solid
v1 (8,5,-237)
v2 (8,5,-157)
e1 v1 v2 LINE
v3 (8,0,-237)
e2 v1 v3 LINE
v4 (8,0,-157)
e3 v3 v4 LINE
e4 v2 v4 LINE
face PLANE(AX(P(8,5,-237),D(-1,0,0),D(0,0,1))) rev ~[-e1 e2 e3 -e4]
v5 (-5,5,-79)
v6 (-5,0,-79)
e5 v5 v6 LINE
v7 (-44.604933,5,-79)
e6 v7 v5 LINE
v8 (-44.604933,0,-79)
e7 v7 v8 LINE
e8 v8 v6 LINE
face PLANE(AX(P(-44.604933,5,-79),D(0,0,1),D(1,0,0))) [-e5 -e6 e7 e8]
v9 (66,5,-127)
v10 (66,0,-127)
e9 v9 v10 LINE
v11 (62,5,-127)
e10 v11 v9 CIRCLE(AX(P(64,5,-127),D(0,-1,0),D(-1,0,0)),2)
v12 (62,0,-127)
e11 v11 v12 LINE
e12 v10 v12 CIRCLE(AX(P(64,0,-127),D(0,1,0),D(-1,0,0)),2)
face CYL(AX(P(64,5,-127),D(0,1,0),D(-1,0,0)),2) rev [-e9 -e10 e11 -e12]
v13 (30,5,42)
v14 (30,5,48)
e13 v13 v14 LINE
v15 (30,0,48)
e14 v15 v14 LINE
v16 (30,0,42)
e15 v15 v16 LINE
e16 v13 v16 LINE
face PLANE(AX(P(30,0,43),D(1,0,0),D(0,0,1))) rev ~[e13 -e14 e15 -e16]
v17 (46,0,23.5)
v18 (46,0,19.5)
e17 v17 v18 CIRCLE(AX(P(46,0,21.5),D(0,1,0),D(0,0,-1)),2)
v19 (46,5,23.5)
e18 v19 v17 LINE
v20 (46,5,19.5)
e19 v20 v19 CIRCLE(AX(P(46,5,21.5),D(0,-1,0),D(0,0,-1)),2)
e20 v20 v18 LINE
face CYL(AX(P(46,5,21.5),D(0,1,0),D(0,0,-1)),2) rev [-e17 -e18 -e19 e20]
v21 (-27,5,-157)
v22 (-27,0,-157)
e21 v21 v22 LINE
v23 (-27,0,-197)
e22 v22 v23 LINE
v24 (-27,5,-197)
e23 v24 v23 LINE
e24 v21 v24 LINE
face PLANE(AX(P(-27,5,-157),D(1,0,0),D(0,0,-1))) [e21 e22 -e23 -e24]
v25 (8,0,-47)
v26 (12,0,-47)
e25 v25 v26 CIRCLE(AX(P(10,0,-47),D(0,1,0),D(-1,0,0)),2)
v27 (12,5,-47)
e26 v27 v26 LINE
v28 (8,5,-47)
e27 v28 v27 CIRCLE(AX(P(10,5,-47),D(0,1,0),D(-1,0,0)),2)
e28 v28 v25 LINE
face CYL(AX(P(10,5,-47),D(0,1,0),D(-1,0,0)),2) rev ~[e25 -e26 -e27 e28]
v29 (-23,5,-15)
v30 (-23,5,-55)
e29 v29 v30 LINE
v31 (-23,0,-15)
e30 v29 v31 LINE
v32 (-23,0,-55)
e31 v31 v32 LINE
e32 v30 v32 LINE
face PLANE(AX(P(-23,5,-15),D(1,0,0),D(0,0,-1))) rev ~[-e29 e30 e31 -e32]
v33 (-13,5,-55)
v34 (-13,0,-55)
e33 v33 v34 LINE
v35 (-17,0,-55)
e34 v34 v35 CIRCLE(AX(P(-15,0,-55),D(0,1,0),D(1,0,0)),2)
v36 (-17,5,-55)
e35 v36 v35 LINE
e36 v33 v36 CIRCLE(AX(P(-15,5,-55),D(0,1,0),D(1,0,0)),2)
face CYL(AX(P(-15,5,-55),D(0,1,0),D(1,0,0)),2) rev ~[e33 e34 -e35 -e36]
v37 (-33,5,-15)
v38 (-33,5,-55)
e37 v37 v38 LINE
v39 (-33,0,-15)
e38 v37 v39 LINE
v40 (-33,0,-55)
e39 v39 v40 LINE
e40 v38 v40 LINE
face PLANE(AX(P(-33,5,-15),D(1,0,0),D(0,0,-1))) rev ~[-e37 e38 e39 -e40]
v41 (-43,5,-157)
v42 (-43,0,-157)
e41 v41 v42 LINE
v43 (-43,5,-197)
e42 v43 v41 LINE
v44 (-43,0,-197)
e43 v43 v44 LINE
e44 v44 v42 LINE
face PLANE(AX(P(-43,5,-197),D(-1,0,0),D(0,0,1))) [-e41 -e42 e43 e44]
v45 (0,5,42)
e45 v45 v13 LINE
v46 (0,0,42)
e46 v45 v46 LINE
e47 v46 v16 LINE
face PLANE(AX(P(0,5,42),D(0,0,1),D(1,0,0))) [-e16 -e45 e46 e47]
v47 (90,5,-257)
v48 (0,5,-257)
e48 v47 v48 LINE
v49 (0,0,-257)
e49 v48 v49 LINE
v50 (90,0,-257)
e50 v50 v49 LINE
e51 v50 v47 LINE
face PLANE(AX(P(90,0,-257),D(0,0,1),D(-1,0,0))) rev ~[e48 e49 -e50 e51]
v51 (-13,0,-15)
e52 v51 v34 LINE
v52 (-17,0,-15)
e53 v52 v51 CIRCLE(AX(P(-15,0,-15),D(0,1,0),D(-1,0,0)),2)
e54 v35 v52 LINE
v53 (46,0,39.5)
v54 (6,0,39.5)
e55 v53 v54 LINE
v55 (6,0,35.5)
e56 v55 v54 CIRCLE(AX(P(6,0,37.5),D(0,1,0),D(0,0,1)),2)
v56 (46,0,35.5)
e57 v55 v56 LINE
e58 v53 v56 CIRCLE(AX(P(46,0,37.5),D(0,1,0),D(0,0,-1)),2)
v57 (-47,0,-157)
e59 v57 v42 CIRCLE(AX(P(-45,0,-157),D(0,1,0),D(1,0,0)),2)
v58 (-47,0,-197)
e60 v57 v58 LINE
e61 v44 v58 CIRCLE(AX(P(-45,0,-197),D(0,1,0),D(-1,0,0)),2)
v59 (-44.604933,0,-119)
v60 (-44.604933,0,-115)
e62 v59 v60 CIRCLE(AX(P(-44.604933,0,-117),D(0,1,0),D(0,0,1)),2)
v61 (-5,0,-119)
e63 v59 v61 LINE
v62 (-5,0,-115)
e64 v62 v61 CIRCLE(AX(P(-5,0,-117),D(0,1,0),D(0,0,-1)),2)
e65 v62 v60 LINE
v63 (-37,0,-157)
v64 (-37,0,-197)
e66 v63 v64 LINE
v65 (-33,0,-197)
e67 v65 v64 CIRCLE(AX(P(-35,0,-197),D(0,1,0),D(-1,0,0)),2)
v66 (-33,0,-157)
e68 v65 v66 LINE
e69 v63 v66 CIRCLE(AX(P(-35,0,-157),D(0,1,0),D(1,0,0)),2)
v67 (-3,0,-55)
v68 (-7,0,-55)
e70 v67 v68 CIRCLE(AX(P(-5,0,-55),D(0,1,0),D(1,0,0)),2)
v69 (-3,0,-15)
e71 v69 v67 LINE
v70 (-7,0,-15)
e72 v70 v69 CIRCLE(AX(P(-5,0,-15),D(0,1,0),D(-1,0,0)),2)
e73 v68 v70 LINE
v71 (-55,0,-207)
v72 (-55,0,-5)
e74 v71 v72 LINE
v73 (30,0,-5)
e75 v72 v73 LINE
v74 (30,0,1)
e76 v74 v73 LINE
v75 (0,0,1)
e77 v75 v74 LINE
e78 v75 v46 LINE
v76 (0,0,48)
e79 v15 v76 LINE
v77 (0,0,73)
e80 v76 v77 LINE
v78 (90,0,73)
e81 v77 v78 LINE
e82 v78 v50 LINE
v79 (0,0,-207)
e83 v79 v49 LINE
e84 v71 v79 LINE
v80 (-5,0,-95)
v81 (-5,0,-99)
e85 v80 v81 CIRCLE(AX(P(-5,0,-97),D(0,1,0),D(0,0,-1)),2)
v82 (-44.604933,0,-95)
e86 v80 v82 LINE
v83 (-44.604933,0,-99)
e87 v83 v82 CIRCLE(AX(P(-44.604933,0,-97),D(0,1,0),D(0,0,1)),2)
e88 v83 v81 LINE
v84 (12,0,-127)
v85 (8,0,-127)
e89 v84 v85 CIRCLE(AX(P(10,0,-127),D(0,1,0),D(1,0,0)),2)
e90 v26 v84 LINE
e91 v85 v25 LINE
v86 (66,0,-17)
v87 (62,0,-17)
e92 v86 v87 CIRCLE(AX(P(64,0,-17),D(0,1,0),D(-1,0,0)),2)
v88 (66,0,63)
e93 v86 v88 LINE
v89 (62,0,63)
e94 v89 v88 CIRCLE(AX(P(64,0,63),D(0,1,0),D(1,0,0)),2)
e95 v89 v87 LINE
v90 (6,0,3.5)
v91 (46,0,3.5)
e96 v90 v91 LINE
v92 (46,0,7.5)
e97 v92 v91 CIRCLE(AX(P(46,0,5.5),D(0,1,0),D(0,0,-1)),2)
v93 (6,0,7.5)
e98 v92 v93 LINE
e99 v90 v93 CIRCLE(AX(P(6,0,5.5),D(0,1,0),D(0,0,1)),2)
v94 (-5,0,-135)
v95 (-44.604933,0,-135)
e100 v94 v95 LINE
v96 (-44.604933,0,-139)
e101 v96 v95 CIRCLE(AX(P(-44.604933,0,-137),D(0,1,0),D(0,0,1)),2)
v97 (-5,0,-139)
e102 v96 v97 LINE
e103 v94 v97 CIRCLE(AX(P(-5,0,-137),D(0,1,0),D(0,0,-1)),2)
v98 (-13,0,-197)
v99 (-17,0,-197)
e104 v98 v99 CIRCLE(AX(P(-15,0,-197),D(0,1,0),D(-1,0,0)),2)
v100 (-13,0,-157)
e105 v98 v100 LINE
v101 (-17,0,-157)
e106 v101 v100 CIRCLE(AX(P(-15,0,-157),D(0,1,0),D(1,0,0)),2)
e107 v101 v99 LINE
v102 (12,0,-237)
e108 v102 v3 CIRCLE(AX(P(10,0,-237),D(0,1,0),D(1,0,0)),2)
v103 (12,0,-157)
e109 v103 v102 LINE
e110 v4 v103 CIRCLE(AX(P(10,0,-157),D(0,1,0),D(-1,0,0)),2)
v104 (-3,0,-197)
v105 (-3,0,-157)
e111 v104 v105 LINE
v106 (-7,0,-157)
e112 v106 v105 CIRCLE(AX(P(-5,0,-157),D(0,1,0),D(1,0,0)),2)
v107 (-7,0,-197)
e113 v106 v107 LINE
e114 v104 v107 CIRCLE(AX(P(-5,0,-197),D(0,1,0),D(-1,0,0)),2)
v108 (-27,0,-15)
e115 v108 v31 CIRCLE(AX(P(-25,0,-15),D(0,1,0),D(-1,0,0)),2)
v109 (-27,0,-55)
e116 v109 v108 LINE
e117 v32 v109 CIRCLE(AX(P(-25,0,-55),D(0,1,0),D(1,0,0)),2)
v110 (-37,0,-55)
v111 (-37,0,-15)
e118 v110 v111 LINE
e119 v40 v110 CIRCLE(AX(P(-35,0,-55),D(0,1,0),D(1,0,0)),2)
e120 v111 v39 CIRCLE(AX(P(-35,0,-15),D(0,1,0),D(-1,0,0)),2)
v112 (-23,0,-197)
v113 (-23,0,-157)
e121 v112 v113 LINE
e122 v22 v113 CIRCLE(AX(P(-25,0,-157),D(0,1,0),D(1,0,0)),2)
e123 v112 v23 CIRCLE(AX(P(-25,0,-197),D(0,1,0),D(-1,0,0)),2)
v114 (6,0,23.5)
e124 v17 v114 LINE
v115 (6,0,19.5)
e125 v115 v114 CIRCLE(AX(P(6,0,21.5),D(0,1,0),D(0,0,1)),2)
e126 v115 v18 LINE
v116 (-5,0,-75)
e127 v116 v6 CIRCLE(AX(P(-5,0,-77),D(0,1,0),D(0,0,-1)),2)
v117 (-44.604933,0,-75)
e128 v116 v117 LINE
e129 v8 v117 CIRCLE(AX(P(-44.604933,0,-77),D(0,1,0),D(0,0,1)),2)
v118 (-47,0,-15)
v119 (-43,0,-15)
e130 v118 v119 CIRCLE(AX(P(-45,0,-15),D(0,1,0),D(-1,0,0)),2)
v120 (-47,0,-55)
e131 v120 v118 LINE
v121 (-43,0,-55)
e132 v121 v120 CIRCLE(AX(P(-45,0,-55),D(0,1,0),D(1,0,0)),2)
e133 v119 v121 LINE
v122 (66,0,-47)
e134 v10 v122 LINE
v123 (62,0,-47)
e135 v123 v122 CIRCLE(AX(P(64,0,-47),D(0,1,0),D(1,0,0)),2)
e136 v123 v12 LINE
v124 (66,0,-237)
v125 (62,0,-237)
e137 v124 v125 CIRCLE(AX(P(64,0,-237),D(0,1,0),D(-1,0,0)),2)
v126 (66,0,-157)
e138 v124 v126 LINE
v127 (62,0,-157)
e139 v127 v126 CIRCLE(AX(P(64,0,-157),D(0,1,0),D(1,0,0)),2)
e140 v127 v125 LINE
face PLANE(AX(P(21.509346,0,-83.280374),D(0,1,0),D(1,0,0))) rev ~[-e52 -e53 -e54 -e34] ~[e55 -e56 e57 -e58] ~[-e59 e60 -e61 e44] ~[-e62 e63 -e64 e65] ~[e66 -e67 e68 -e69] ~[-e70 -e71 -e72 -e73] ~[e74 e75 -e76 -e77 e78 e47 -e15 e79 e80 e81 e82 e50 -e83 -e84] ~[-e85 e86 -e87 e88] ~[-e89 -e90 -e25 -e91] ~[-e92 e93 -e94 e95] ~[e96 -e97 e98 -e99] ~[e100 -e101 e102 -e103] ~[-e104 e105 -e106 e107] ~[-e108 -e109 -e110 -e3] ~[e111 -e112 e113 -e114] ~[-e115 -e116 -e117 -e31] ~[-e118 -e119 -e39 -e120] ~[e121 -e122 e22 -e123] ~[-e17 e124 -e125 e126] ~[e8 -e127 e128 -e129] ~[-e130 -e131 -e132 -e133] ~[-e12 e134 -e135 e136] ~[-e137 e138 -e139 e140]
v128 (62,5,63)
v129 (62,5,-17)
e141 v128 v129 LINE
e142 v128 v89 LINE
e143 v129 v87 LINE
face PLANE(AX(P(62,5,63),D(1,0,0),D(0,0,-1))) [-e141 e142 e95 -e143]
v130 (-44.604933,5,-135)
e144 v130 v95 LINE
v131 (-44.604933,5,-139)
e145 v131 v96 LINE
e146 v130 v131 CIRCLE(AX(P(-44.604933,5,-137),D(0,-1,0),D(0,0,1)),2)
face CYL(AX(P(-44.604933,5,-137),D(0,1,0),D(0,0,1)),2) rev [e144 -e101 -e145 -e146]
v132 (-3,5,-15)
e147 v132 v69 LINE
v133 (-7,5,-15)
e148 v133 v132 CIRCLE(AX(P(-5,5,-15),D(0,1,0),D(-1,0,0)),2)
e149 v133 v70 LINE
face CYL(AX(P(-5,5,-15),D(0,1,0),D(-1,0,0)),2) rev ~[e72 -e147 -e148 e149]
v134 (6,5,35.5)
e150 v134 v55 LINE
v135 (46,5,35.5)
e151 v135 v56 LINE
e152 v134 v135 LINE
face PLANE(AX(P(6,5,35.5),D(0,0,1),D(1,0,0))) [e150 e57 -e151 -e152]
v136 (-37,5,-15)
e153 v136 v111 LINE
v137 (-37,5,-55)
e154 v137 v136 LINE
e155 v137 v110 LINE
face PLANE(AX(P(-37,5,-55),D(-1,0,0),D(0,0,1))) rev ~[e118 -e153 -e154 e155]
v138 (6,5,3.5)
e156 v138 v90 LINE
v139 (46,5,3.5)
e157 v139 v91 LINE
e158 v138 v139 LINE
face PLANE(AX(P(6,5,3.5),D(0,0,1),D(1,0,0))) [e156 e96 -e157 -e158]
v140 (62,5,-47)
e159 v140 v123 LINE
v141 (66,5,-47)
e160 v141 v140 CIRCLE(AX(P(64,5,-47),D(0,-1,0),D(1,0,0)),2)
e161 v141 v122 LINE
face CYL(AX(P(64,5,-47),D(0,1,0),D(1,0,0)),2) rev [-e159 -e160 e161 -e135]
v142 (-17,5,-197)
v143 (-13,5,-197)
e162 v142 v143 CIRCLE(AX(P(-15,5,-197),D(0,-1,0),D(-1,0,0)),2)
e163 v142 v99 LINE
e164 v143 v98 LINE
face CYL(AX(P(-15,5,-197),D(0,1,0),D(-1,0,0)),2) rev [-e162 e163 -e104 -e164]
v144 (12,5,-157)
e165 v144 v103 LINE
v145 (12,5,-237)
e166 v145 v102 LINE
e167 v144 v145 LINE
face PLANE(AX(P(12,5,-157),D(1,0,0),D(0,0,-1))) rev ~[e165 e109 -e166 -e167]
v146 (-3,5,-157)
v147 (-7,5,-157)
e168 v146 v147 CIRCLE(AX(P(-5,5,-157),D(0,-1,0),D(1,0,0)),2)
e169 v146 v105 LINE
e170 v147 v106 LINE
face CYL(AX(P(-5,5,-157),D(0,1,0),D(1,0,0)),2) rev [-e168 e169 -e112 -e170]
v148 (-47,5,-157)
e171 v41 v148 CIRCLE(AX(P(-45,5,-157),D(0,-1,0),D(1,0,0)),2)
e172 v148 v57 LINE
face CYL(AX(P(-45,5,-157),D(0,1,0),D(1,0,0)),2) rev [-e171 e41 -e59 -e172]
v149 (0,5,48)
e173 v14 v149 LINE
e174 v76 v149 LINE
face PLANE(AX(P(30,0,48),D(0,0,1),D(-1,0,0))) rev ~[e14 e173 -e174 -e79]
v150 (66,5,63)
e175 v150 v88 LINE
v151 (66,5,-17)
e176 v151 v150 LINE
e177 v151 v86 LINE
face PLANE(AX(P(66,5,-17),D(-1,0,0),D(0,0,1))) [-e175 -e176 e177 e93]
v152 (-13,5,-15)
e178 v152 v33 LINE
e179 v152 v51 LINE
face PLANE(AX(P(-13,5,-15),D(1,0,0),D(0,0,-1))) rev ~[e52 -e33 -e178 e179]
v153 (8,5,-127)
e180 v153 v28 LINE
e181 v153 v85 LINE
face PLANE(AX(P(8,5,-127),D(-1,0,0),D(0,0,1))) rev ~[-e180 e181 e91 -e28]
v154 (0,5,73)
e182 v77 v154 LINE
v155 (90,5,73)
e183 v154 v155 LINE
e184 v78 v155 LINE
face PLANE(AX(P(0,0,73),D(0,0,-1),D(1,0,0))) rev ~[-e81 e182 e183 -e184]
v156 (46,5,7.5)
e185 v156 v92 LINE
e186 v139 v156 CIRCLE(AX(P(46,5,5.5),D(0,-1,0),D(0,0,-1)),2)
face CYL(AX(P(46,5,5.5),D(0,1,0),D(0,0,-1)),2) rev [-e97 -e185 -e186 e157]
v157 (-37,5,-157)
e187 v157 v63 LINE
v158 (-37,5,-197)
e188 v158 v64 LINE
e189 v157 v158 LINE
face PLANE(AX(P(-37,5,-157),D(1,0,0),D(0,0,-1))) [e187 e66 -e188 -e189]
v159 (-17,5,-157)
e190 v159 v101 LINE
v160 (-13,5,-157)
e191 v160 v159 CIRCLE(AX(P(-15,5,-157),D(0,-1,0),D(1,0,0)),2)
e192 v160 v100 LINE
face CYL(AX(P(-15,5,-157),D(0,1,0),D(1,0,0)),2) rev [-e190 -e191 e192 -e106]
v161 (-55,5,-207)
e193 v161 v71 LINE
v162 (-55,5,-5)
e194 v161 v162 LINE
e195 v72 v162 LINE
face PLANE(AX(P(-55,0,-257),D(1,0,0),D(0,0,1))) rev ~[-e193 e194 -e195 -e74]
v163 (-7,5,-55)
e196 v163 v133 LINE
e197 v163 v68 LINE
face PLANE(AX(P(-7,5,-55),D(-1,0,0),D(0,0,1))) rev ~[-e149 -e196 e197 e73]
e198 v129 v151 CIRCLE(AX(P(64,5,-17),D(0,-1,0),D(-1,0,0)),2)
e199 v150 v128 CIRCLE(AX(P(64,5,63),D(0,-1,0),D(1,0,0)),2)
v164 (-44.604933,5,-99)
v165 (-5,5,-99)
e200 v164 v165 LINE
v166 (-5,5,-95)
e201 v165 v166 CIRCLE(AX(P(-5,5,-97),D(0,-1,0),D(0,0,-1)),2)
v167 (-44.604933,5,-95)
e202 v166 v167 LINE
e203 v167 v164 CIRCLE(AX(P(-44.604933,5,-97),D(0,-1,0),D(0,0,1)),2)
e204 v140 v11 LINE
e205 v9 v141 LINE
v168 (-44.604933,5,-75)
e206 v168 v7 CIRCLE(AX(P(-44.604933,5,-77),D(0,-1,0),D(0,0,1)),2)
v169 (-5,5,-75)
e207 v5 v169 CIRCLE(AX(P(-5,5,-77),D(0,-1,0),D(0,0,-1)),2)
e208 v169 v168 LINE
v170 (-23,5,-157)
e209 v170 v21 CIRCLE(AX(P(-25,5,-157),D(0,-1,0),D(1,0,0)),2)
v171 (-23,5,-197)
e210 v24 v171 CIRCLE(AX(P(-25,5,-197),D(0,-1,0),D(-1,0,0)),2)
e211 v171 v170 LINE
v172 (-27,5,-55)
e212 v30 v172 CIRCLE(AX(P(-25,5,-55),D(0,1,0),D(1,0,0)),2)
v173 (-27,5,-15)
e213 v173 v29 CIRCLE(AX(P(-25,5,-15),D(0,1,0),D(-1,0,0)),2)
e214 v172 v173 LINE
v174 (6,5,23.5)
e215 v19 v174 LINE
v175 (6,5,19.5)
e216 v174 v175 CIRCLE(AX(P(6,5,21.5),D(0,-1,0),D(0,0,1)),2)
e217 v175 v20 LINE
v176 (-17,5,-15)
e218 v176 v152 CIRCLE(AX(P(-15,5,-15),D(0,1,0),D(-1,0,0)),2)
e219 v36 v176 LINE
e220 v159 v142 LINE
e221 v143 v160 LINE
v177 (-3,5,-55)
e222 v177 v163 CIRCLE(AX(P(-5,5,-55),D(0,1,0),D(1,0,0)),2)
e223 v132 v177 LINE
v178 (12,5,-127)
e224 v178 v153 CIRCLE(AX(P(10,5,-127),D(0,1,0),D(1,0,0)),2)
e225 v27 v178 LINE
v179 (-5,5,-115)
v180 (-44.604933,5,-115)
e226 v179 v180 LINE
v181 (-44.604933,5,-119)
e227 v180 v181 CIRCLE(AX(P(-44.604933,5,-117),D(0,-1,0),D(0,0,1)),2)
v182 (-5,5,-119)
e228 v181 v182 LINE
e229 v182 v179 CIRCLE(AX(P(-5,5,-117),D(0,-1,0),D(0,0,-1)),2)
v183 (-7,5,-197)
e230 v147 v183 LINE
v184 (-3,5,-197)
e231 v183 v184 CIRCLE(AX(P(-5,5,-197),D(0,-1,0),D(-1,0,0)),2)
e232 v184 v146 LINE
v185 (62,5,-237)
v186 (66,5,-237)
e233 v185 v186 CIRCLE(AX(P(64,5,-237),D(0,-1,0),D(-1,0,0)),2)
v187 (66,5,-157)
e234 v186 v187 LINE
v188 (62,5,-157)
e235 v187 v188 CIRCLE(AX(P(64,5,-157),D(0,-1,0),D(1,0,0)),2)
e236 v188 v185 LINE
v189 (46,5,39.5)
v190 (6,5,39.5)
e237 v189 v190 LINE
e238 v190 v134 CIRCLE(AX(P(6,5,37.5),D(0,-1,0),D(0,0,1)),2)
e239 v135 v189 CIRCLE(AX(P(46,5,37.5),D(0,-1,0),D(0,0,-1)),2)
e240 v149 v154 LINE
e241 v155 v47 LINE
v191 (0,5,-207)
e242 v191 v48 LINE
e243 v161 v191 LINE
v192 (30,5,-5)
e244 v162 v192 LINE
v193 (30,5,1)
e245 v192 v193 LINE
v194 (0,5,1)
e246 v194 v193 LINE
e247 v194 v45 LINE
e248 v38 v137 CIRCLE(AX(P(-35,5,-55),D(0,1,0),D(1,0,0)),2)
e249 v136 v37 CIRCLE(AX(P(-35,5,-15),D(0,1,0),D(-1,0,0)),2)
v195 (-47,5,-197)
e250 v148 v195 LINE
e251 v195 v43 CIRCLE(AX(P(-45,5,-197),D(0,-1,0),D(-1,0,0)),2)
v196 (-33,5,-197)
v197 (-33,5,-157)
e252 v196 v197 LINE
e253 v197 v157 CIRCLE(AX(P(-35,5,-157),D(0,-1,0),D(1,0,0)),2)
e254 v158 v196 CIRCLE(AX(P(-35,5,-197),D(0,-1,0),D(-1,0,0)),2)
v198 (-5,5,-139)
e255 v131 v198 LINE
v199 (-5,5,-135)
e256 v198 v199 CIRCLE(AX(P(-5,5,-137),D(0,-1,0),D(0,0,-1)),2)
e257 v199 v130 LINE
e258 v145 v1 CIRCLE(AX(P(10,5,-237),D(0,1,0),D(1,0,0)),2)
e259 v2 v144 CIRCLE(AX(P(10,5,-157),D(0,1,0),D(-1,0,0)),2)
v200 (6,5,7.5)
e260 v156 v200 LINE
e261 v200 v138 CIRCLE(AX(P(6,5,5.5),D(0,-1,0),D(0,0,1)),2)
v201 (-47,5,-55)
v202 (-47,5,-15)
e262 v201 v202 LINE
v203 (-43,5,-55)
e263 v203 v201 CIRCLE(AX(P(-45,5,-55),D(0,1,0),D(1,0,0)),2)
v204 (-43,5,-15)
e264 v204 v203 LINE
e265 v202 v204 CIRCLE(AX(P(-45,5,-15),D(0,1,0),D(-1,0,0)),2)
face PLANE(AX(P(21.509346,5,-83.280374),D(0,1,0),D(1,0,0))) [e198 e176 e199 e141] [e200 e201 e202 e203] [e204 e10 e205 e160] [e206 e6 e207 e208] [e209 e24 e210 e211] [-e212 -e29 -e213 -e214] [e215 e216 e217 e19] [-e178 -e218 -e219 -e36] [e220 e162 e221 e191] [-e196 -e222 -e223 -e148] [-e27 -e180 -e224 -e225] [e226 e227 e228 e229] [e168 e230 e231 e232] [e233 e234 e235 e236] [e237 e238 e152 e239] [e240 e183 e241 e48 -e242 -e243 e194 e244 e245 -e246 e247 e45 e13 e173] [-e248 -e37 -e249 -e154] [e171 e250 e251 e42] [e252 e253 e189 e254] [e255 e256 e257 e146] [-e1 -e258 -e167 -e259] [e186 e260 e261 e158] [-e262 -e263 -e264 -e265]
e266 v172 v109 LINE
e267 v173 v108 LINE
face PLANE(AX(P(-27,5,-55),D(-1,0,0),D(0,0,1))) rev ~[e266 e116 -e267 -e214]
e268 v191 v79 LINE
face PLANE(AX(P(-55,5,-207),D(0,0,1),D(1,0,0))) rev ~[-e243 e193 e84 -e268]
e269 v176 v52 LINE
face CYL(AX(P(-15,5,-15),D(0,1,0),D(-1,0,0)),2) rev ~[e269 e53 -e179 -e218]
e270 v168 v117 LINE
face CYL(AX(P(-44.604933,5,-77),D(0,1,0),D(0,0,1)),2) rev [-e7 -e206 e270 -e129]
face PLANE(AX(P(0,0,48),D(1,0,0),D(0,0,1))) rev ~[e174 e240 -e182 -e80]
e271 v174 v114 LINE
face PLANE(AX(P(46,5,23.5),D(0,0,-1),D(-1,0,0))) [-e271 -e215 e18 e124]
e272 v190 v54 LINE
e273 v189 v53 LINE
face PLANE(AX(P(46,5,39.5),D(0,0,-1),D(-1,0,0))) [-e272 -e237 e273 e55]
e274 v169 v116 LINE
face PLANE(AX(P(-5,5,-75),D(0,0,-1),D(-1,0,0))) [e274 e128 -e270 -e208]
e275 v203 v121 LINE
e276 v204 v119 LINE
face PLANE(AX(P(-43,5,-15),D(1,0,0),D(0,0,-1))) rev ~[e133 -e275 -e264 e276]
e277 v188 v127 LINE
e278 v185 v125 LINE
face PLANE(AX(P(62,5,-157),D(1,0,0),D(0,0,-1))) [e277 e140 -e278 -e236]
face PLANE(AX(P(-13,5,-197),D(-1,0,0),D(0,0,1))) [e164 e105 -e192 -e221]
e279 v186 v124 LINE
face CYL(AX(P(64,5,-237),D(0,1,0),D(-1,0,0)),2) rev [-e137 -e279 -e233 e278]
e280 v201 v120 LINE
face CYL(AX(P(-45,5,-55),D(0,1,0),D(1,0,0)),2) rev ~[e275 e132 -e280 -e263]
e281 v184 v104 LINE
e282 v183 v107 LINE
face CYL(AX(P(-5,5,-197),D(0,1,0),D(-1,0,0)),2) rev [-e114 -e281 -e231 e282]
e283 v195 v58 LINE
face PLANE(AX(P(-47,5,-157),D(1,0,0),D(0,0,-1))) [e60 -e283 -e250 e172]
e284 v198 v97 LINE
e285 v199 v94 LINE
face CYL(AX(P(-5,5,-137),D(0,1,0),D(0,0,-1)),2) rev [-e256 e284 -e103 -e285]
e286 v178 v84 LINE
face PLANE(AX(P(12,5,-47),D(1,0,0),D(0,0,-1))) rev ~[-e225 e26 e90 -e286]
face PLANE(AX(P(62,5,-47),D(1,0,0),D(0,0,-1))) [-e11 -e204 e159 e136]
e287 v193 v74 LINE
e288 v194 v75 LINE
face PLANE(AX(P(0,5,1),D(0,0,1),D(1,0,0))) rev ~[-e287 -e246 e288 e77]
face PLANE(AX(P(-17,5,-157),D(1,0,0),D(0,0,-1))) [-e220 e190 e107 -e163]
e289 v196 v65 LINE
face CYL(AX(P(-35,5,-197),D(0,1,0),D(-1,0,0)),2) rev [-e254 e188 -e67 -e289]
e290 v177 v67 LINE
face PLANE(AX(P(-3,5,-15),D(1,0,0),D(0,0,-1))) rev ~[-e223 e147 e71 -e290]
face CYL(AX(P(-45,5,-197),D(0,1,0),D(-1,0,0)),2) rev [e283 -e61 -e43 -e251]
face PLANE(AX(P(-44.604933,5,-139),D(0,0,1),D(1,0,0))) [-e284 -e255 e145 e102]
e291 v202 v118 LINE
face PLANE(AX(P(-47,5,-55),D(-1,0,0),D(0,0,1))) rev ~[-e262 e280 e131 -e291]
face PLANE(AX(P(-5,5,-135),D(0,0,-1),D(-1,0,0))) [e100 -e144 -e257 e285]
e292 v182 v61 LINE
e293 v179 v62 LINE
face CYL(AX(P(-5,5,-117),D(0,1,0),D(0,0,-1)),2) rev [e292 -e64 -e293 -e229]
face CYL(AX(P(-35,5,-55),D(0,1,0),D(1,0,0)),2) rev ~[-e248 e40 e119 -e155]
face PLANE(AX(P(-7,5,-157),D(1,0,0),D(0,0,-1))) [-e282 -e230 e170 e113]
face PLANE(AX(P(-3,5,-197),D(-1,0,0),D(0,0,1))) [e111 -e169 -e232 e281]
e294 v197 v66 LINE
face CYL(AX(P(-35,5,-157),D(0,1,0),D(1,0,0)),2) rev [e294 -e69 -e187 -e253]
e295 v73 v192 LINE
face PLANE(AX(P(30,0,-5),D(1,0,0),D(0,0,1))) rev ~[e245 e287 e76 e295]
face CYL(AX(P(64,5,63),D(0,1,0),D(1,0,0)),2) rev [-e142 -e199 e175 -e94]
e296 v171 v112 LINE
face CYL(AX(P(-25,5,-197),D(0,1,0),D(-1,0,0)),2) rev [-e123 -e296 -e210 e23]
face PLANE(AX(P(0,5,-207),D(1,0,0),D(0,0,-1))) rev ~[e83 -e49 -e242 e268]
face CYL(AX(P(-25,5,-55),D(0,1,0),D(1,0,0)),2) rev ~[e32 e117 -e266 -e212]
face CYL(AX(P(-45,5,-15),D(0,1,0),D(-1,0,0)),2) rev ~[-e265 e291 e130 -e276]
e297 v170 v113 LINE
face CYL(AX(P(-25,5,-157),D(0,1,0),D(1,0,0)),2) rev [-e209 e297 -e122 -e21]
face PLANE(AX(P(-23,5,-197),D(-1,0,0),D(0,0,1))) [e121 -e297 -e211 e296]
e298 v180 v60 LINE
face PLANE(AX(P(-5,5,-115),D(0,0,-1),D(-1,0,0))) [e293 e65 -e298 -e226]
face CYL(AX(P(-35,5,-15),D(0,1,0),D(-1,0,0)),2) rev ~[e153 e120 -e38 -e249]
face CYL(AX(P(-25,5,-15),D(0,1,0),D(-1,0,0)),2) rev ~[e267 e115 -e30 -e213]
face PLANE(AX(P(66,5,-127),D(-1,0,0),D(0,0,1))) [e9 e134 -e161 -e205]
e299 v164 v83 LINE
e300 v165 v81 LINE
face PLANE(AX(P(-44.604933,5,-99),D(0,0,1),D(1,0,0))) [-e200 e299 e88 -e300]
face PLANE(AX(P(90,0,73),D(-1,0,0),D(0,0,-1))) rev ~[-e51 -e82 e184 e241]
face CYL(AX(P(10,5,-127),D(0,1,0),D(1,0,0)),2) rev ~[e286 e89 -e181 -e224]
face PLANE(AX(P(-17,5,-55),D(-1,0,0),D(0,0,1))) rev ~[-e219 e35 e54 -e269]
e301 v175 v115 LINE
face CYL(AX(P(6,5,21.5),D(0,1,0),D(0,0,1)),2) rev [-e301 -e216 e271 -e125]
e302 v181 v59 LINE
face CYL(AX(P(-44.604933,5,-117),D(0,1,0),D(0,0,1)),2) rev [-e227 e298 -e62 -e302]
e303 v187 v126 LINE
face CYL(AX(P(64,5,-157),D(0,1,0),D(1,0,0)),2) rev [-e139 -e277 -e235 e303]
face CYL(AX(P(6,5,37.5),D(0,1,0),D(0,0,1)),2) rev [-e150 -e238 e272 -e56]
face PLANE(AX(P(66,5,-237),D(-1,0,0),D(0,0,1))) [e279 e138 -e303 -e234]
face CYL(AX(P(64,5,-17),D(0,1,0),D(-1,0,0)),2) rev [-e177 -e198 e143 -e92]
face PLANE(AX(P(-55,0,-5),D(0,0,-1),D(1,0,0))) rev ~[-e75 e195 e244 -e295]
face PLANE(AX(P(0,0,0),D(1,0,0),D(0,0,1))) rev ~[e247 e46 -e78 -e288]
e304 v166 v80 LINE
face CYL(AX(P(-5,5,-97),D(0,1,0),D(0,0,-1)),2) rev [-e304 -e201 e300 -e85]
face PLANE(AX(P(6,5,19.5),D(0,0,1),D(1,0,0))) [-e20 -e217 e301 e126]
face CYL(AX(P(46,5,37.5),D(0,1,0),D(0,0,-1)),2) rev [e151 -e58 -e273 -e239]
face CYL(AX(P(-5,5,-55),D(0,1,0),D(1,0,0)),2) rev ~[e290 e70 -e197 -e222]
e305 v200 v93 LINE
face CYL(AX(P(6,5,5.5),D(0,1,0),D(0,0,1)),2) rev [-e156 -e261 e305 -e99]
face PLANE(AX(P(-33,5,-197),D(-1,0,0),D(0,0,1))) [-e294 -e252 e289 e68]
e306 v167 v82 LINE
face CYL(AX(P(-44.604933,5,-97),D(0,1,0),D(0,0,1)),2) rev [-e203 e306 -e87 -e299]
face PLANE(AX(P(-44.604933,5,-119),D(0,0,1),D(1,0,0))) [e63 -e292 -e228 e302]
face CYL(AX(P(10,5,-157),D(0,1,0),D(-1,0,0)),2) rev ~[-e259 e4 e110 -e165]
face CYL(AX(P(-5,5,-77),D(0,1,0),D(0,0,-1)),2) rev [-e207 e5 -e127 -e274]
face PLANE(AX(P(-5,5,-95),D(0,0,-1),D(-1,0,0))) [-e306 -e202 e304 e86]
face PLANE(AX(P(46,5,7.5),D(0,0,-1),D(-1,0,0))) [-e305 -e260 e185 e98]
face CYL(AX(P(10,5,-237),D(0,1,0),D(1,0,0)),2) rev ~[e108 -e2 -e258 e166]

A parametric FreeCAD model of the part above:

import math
import FreeCAD as App
import Part
import Sketcher
from FreeCAD import Vector
Q = App.Units.Quantity

doc = App.newDocument("Part")
body = doc.addObject("PartDesign::Body", "Body")

sketch1 = body.newObject("Sketcher::SketchObject", "Sketch")
sketch1.AttachmentSupport = (doc.getObject("XZ_Plane"), [""])
sketch1.MapMode = "FlatFace"
sketch1.addGeometry([
    Part.LineSegment(Vector(0, 0, 0), Vector(0, 43, 0)),
    Part.LineSegment(Vector(0, 43, 0), Vector(30, 43, 0)),
    Part.LineSegment(Vector(30, 43, 0), Vector(30, 48, 0)),
    Part.LineSegment(Vector(30, 48, 0), Vector(0, 48, 0)),
    Part.LineSegment(Vector(0, 48, 0), Vector(0, 73, 0)),
    Part.LineSegment(Vector(0, 73, 0), Vector(90, 73, 0)),
    Part.LineSegment(Vector(90, 73, 0), Vector(90, -257, 0)),
    Part.LineSegment(Vector(90, -257, 0), Vector(-55, -257, 0)),
    Part.LineSegment(Vector(-55, -257, 0), Vector(-55, -5, 0)),
    Part.LineSegment(Vector(-55, -5, 0), Vector(30, -5, 0)),
    Part.LineSegment(Vector(30, -5, 0), Vector(30, 0, 0)),
    Part.LineSegment(Vector(30, 0, 0), Vector(0, 0, 0)),
], False)
sketch1.addConstraint([
    Sketcher.Constraint("Coincident", 0, 2, 1, 1),
    Sketcher.Constraint("Coincident", 1, 2, 2, 1),
    Sketcher.Constraint("Coincident", 2, 2, 3, 1),
    Sketcher.Constraint("Coincident", 3, 2, 4, 1),
    Sketcher.Constraint("Coincident", 4, 2, 5, 1),
    Sketcher.Constraint("Coincident", 5, 2, 6, 1),
    Sketcher.Constraint("Coincident", 6, 2, 7, 1),
    Sketcher.Constraint("Coincident", 7, 2, 8, 1),
    Sketcher.Constraint("Coincident", 8, 2, 9, 1),
    Sketcher.Constraint("Coincident", 9, 2, 10, 1),
    Sketcher.Constraint("Coincident", 10, 2, 11, 1),
    Sketcher.Constraint("Coincident", 11, 2, 0, 1),
    Sketcher.Constraint("Vertical", 0),
    Sketcher.Constraint("Horizontal", 1),
    Sketcher.Constraint("Vertical", 2),
    Sketcher.Constraint("Horizontal", 3),
    Sketcher.Constraint("Vertical", 4),
    Sketcher.Constraint("Horizontal", 5),
    Sketcher.Constraint("Vertical", 6),
    Sketcher.Constraint("Horizontal", 7),
    Sketcher.Constraint("Vertical", 8),
    Sketcher.Constraint("Horizontal", 9),
    Sketcher.Constraint("Vertical", 10),
    Sketcher.Constraint("Horizontal", 11),
    Sketcher.Constraint("Coincident", 11, 2, -1, 1),
    Sketcher.Constraint("PointOnObject", 3, 2, -2),
    Sketcher.Constraint("Vertical", 2, 2, 9, 2),
    Sketcher.Constraint("Equal", 2, 10),
    Sketcher.Constraint("DistanceX", 1, 1, 1, 2, Q("30 mm")),
    Sketcher.Constraint("DistanceX", 5, 1, 5, 2, Q("90 mm")),
    Sketcher.Constraint("DistanceX", 7, 2, 7, 1, Q("145 mm")),
    Sketcher.Constraint("DistanceY", 0, 1, 0, 2, Q("43 mm")),
    Sketcher.Constraint("DistanceY", 2, 1, 2, 2, Q("5 mm")),
    Sketcher.Constraint("DistanceY", 4, 1, 4, 2, Q("25 mm")),
    Sketcher.Constraint("DistanceY", 6, 2, 6, 1, Q("330 mm")),
])
pad1 = body.newObject("PartDesign::Pad", "Pad")
pad1.Profile = sketch1
pad1.Length = 5
pad1.Reversed = True

sketch2 = body.newObject("Sketcher::SketchObject", "Sketch001")
sketch2.AttachmentSupport = (doc.getObject("XZ_Plane"), [""])
sketch2.MapMode = "FlatFace"
sketch2.AttachmentOffset = App.Placement(Vector(0, 0, -5), App.Rotation())
sketch2.addGeometry([
    Part.LineSegment(Vector(-55, -257, 0), Vector(-55, -207, 0)),
    Part.LineSegment(Vector(-55, -207, 0), Vector(0, -207, 0)),
    Part.LineSegment(Vector(0, -207, 0), Vector(0, -257, 0)),
    Part.LineSegment(Vector(0, -257, 0), Vector(-55, -257, 0)),
], False)
sketch2.addConstraint([
    Sketcher.Constraint("Coincident", 0, 2, 1, 1),
    Sketcher.Constraint("Coincident", 1, 2, 2, 1),
    Sketcher.Constraint("Coincident", 2, 2, 3, 1),
    Sketcher.Constraint("Coincident", 3, 2, 0, 1),
    Sketcher.Constraint("Vertical", 0),
    Sketcher.Constraint("Horizontal", 1),
    Sketcher.Constraint("Vertical", 2),
    Sketcher.Constraint("Horizontal", 3),
    Sketcher.Constraint("PointOnObject", 1, 2, -2),
    Sketcher.Constraint("DistanceX", 1, 1, 1, 2, Q("55 mm")),
    Sketcher.Constraint("DistanceY", 0, 1, 0, 2, Q("50 mm")),
    Sketcher.Constraint("DistanceY", 0, 2, -1, 1, Q("207 mm")),
])
pocket1 = body.newObject("PartDesign::Pocket", "Pocket")
pocket1.Profile = sketch2
pocket1.Type = "ThroughAll"
pocket1.Reversed = True

sketch3 = body.newObject("Sketcher::SketchObject", "Sketch002")
sketch3.AttachmentSupport = (doc.getObject("XZ_Plane"), [""])
sketch3.MapMode = "FlatFace"
sketch3.AttachmentOffset = App.Placement(Vector(0, 0, -5), App.Rotation())
sketch3.addGeometry([
    Part.LineSegment(Vector(66, -157, 0), Vector(66, -237, 0)),
    Part.ArcOfCircle(Part.Circle(Vector(64, -237, 0), Vector(0, 0, 1), 2), math.radians(180), math.radians(360)),
    Part.LineSegment(Vector(62, -237, 0), Vector(62, -157, 0)),
    Part.ArcOfCircle(Part.Circle(Vector(64, -157, 0), Vector(0, 0, 1), 2), math.radians(0), math.radians(180)),
    Part.LineSegment(Vector(66, -47, 0), Vector(66, -127, 0)),
    Part.ArcOfCircle(Part.Circle(Vector(64, -127, 0), Vector(0, 0, 1), 2), math.radians(180), math.radians(360)),
    Part.LineSegment(Vector(62, -127, 0), Vector(62, -47, 0)),
    Part.ArcOfCircle(Part.Circle(Vector(64, -47, 0), Vector(0, 0, 1), 2), math.radians(0), math.radians(180)),
    Part.LineSegment(Vector(66, 63, 0), Vector(66, -17, 0)),
    Part.ArcOfCircle(Part.Circle(Vector(64, -17, 0), Vector(0, 0, 1), 2), math.radians(180), math.radians(360)),
    Part.LineSegment(Vector(62, -17, 0), Vector(62, 63, 0)),
    Part.ArcOfCircle(Part.Circle(Vector(64, 63, 0), Vector(0, 0, 1), 2), math.radians(0), math.radians(180)),
    Part.LineSegment(Vector(8, -237, 0), Vector(8, -157, 0)),
    Part.ArcOfCircle(Part.Circle(Vector(10, -157, 0), Vector(0, 0, 1), 2), math.radians(0), math.radians(180)),
    Part.LineSegment(Vector(12, -157, 0), Vector(12, -237, 0)),
    Part.ArcOfCircle(Part.Circle(Vector(10, -237, 0), Vector(0, 0, 1), 2), math.radians(180), math.radians(360)),
    Part.LineSegment(Vector(8, -127, 0), Vector(8, -47, 0)),
    Part.ArcOfCircle(Part.Circle(Vector(10, -47, 0), Vector(0, 0, 1), 2), math.radians(0), math.radians(180)),
    Part.LineSegment(Vector(12, -47, 0), Vector(12, -127, 0)),
    Part.ArcOfCircle(Part.Circle(Vector(10, -127, 0), Vector(0, 0, 1), 2), math.radians(180), math.radians(360)),
], False)
sketch3.addConstraint([
    Sketcher.Constraint("Tangent", 0, 2, 1, 2),
    Sketcher.Constraint("Tangent", 1, 1, 2, 1),
    Sketcher.Constraint("Tangent", 2, 2, 3, 2),
    Sketcher.Constraint("Tangent", 3, 1, 0, 1),
    Sketcher.Constraint("Tangent", 4, 2, 5, 2),
    Sketcher.Constraint("Tangent", 5, 1, 6, 1),
    Sketcher.Constraint("Tangent", 6, 2, 7, 2),
    Sketcher.Constraint("Tangent", 7, 1, 4, 1),
    Sketcher.Constraint("Tangent", 8, 2, 9, 2),
    Sketcher.Constraint("Tangent", 9, 1, 10, 1),
    Sketcher.Constraint("Tangent", 10, 2, 11, 2),
    Sketcher.Constraint("Tangent", 11, 1, 8, 1),
    Sketcher.Constraint("Tangent", 12, 2, 13, 2),
    Sketcher.Constraint("Tangent", 13, 1, 14, 1),
    Sketcher.Constraint("Tangent", 14, 2, 15, 2),
    Sketcher.Constraint("Tangent", 15, 1, 12, 1),
    Sketcher.Constraint("Tangent", 16, 2, 17, 2),
    Sketcher.Constraint("Tangent", 17, 1, 18, 1),
    Sketcher.Constraint("Tangent", 18, 2, 19, 2),
    Sketcher.Constraint("Tangent", 19, 1, 16, 1),
    Sketcher.Constraint("Vertical", 0),
    Sketcher.Constraint("Vertical", 2),
    Sketcher.Constraint("Vertical", 4),
    Sketcher.Constraint("Vertical", 6),
    Sketcher.Constraint("Vertical", 8),
    Sketcher.Constraint("Vertical", 10),
    Sketcher.Constraint("Vertical", 12),
    Sketcher.Constraint("Vertical", 14),
    Sketcher.Constraint("Vertical", 16),
    Sketcher.Constraint("Vertical", 18),
    Sketcher.Constraint("Equal", 3, 5),
    Sketcher.Constraint("Equal", 7, 9),
    Sketcher.Constraint("Equal", 11, 13),
    Sketcher.Constraint("Equal", 15, 17),
    Sketcher.Constraint("Horizontal", 3, 3, 13, 3),
    Sketcher.Constraint("Horizontal", 1, 3, 15, 3),
    Sketcher.Constraint("Horizontal", 7, 3, 17, 3),
    Sketcher.Constraint("Horizontal", 5, 3, 19, 3),
    Sketcher.Constraint("Vertical", 3, 3, 5, 3),
    Sketcher.Constraint("Vertical", 7, 3, 9, 3),
    Sketcher.Constraint("Vertical", 15, 3, 17, 3),
    Sketcher.Constraint("Equal", 2, 4),
    Sketcher.Constraint("Equal", 6, 8),
    Sketcher.Constraint("Radius", 1, Q("2 mm")),
    Sketcher.Constraint("DistanceY", 0, 2, 0, 1, Q("80 mm")),
    Sketcher.Constraint("DistanceX", -1, 1, 1, 3, Q("64 mm")),
    Sketcher.Constraint("DistanceY", 1, 3, -1, 1, Q("237 mm")),
    Sketcher.Constraint("DistanceY", 5, 3, -1, 1, Q("127 mm")),
    Sketcher.Constraint("DistanceY", 9, 3, -1, 1, Q("17 mm")),
    Sketcher.Constraint("DistanceX", -1, 1, 13, 3, Q("10 mm")),
])
pocket2 = body.newObject("PartDesign::Pocket", "Pocket001")
pocket2.Profile = sketch3
pocket2.Type = "ThroughAll"
pocket2.Reversed = True

sketch4 = body.newObject("Sketcher::SketchObject", "Sketch003")
sketch4.AttachmentSupport = (doc.getObject("XZ_Plane"), [""])
sketch4.MapMode = "FlatFace"
sketch4.AttachmentOffset = App.Placement(Vector(0, 0, -5), App.Rotation())
sketch4.addGeometry([
    Part.LineSegment(Vector(0, 0, 0), Vector(0, 1, 0)),
    Part.LineSegment(Vector(0, 1, 0), Vector(30, 1, 0)),
    Part.LineSegment(Vector(30, 1, 0), Vector(30, 0, 0)),
    Part.LineSegment(Vector(30, 0, 0), Vector(0, 0, 0)),
    Part.LineSegment(Vector(0, 42, 0), Vector(0, 43, 0)),
    Part.LineSegment(Vector(0, 43, 0), Vector(30, 43, 0)),
    Part.LineSegment(Vector(30, 43, 0), Vector(30, 42, 0)),
    Part.LineSegment(Vector(30, 42, 0), Vector(0, 42, 0)),
], False)
sketch4.addConstraint([
    Sketcher.Constraint("Coincident", 0, 2, 1, 1),
    Sketcher.Constraint("Coincident", 1, 2, 2, 1),
    Sketcher.Constraint("Coincident", 2, 2, 3, 1),
    Sketcher.Constraint("Coincident", 3, 2, 0, 1),
    Sketcher.Constraint("Coincident", 4, 2, 5, 1),
    Sketcher.Constraint("Coincident", 5, 2, 6, 1),
    Sketcher.Constraint("Coincident", 6, 2, 7, 1),
    Sketcher.Constraint("Coincident", 7, 2, 4, 1),
    Sketcher.Constraint("Vertical", 0),
    Sketcher.Constraint("Horizontal", 1),
    Sketcher.Constraint("Vertical", 2),
    Sketcher.Constraint("Horizontal", 3),
    Sketcher.Constraint("Vertical", 4),
    Sketcher.Constraint("Horizontal", 5),
    Sketcher.Constraint("Vertical", 6),
    Sketcher.Constraint("Horizontal", 7),
    Sketcher.Constraint("Coincident", 3, 2, -1, 1),
    Sketcher.Constraint("PointOnObject", 4, 2, -2),
    Sketcher.Constraint("Vertical", 2, 2, 5, 2),
    Sketcher.Constraint("Equal", 2, 4),
    Sketcher.Constraint("DistanceX", 1, 1, 1, 2, Q("30 mm")),
    Sketcher.Constraint("DistanceY", 0, 1, 0, 2, Q("1 mm")),
    Sketcher.Constraint("DistanceY", -1, 1, 4, 2, Q("43 mm")),
])
pocket3 = body.newObject("PartDesign::Pocket", "Pocket002")
pocket3.Profile = sketch4
pocket3.Type = "ThroughAll"
pocket3.Reversed = True

sketch5 = body.newObject("Sketcher::SketchObject", "Sketch004")
sketch5.AttachmentSupport = (doc.getObject("XZ_Plane"), [""])
sketch5.MapMode = "FlatFace"
sketch5.AttachmentOffset = App.Placement(Vector(0, 0, -5), App.Rotation())
sketch5.addGeometry([
    Part.LineSegment(Vector(46, 19.5, 0), Vector(6, 19.5, 0)),
    Part.ArcOfCircle(Part.Circle(Vector(6, 21.5, 0), Vector(0, 0, 1), 2), math.radians(90), math.radians(270)),
    Part.LineSegment(Vector(6, 23.5, 0), Vector(46, 23.5, 0)),
    Part.ArcOfCircle(Part.Circle(Vector(46, 21.5, 0), Vector(0, 0, 1), 2), math.radians(-90), math.radians(90)),
    Part.LineSegment(Vector(46, 3.5, 0), Vector(6, 3.5, 0)),
    Part.ArcOfCircle(Part.Circle(Vector(6, 5.5, 0), Vector(0, 0, 1), 2), math.radians(90), math.radians(270)),
    Part.LineSegment(Vector(6, 7.5, 0), Vector(46, 7.5, 0)),
    Part.ArcOfCircle(Part.Circle(Vector(46, 5.5, 0), Vector(0, 0, 1), 2), math.radians(-90), math.radians(90)),
    Part.LineSegment(Vector(46, 35.5, 0), Vector(6, 35.5, 0)),
    Part.ArcOfCircle(Part.Circle(Vector(6, 37.5, 0), Vector(0, 0, 1), 2), math.radians(90), math.radians(270)),
    Part.LineSegment(Vector(6, 39.5, 0), Vector(46, 39.5, 0)),
    Part.ArcOfCircle(Part.Circle(Vector(46, 37.5, 0), Vector(0, 0, 1), 2), math.radians(-90), math.radians(90)),
], False)
sketch5.addConstraint([
    Sketcher.Constraint("Tangent", 0, 2, 1, 2),
    Sketcher.Constraint("Tangent", 1, 1, 2, 1),
    Sketcher.Constraint("Tangent", 2, 2, 3, 2),
    Sketcher.Constraint("Tangent", 3, 1, 0, 1),
    Sketcher.Constraint("Tangent", 4, 2, 5, 2),
    Sketcher.Constraint("Tangent", 5, 1, 6, 1),
    Sketcher.Constraint("Tangent", 6, 2, 7, 2),
    Sketcher.Constraint("Tangent", 7, 1, 4, 1),
    Sketcher.Constraint("Tangent", 8, 2, 9, 2),
    Sketcher.Constraint("Tangent", 9, 1, 10, 1),
    Sketcher.Constraint("Tangent", 10, 2, 11, 2),
    Sketcher.Constraint("Tangent", 11, 1, 8, 1),
    Sketcher.Constraint("Horizontal", 0),
    Sketcher.Constraint("Horizontal", 2),
    Sketcher.Constraint("Horizontal", 4),
    Sketcher.Constraint("Horizontal", 6),
    Sketcher.Constraint("Horizontal", 8),
    Sketcher.Constraint("Horizontal", 10),
    Sketcher.Constraint("Equal", 3, 5),
    Sketcher.Constraint("Equal", 7, 9),
    Sketcher.Constraint("Vertical", 1, 3, 5, 3),
    Sketcher.Constraint("Vertical", 3, 3, 7, 3),
    Sketcher.Constraint("Vertical", 5, 3, 9, 3),
    Sketcher.Constraint("Vertical", 7, 3, 11, 3),
    Sketcher.Constraint("Radius", 1, Q("2 mm")),
    Sketcher.Constraint("DistanceX", 0, 2, 0, 1, Q("40 mm")),
    Sketcher.Constraint("DistanceX", -1, 1, 1, 3, Q("6 mm")),
    Sketcher.Constraint("DistanceY", 5, 3, 1, 3, Q("16 mm")),
    Sketcher.Constraint("DistanceY", 1, 3, 9, 3, Q("16 mm")),
    Sketcher.Constraint("DistanceY", -1, 1, 1, 3, Q("21.5 mm")),
])
pocket4 = body.newObject("PartDesign::Pocket", "Pocket003")
pocket4.Profile = sketch5
pocket4.Type = "ThroughAll"
pocket4.Reversed = True

sketch6 = body.newObject("Sketcher::SketchObject", "Sketch005")
sketch6.AttachmentSupport = (doc.getObject("XZ_Plane"), [""])
sketch6.MapMode = "FlatFace"
sketch6.AttachmentOffset = App.Placement(Vector(0, 0, -5), App.Rotation())
sketch6.addGeometry([
    Part.LineSegment(Vector(-43, -157, 0), Vector(-43, -197, 0)),
    Part.ArcOfCircle(Part.Circle(Vector(-45, -197, 0), Vector(0, 0, 1), 2), math.radians(180), math.radians(360)),
    Part.LineSegment(Vector(-47, -197, 0), Vector(-47, -157, 0)),
    Part.ArcOfCircle(Part.Circle(Vector(-45, -157, 0), Vector(0, 0, 1), 2), math.radians(0), math.radians(180)),
    Part.LineSegment(Vector(-33, -157, 0), Vector(-33, -197, 0)),
    Part.ArcOfCircle(Part.Circle(Vector(-35, -197, 0), Vector(0, 0, 1), 2), math.radians(180), math.radians(360)),
    Part.LineSegment(Vector(-37, -197, 0), Vector(-37, -157, 0)),
    Part.ArcOfCircle(Part.Circle(Vector(-35, -157, 0), Vector(0, 0, 1), 2), math.radians(0), math.radians(180)),
    Part.LineSegment(Vector(-23, -157, 0), Vector(-23, -197, 0)),
    Part.ArcOfCircle(Part.Circle(Vector(-25, -197, 0), Vector(0, 0, 1), 2), math.radians(180), math.radians(360)),
    Part.LineSegment(Vector(-27, -197, 0), Vector(-27, -157, 0)),
    Part.ArcOfCircle(Part.Circle(Vector(-25, -157, 0), Vector(0, 0, 1), 2), math.radians(0), math.radians(180)),
    Part.LineSegment(Vector(-13, -157, 0), Vector(-13, -197, 0)),
    Part.ArcOfCircle(Part.Circle(Vector(-15, -197, 0), Vector(0, 0, 1), 2), math.radians(180), math.radians(360)),
    Part.LineSegment(Vector(-17, -197, 0), Vector(-17, -157, 0)),
    Part.ArcOfCircle(Part.Circle(Vector(-15, -157, 0), Vector(0, 0, 1), 2), math.radians(0), math.radians(180)),
    Part.LineSegment(Vector(-3, -157, 0), Vector(-3, -197, 0)),
    Part.ArcOfCircle(Part.Circle(Vector(-5, -197, 0), Vector(0, 0, 1), 2), math.radians(180), math.radians(360)),
    Part.LineSegment(Vector(-7, -197, 0), Vector(-7, -157, 0)),
    Part.ArcOfCircle(Part.Circle(Vector(-5, -157, 0), Vector(0, 0, 1), 2), math.radians(0), math.radians(180)),
    Part.LineSegment(Vector(-43, -15, 0), Vector(-43, -55, 0)),
    Part.ArcOfCircle(Part.Circle(Vector(-45, -55, 0), Vector(0, 0, 1), 2), math.radians(180), math.radians(360)),
    Part.LineSegment(Vector(-47, -55, 0), Vector(-47, -15, 0)),
    Part.ArcOfCircle(Part.Circle(Vector(-45, -15, 0), Vector(0, 0, 1), 2), math.radians(0), math.radians(180)),
    Part.LineSegment(Vector(-33, -15, 0), Vector(-33, -55, 0)),
    Part.ArcOfCircle(Part.Circle(Vector(-35, -55, 0), Vector(0, 0, 1), 2), math.radians(180), math.radians(360)),
    Part.LineSegment(Vector(-37, -55, 0), Vector(-37, -15, 0)),
    Part.ArcOfCircle(Part.Circle(Vector(-35, -15, 0), Vector(0, 0, 1), 2), math.radians(0), math.radians(180)),
    Part.LineSegment(Vector(-23, -15, 0), Vector(-23, -55, 0)),
    Part.ArcOfCircle(Part.Circle(Vector(-25, -55, 0), Vector(0, 0, 1), 2), math.radians(180), math.radians(360)),
    Part.LineSegment(Vector(-27, -55, 0), Vector(-27, -15, 0)),
    Part.ArcOfCircle(Part.Circle(Vector(-25, -15, 0), Vector(0, 0, 1), 2), math.radians(0), math.radians(180)),
    Part.LineSegment(Vector(-13, -15, 0), Vector(-13, -55, 0)),
    Part.ArcOfCircle(Part.Circle(Vector(-15, -55, 0), Vector(0, 0, 1), 2), math.radians(180), math.radians(360)),
    Part.LineSegment(Vector(-17, -55, 0), Vector(-17, -15, 0)),
    Part.ArcOfCircle(Part.Circle(Vector(-15, -15, 0), Vector(0, 0, 1), 2), math.radians(0), math.radians(180)),
    Part.LineSegment(Vector(-3, -15, 0), Vector(-3, -55, 0)),
    Part.ArcOfCircle(Part.Circle(Vector(-5, -55, 0), Vector(0, 0, 1), 2), math.radians(180), math.radians(360)),
    Part.LineSegment(Vector(-7, -55, 0), Vector(-7, -15, 0)),
    Part.ArcOfCircle(Part.Circle(Vector(-5, -15, 0), Vector(0, 0, 1), 2), math.radians(0), math.radians(180)),
], False)
sketch6.addConstraint([
    Sketcher.Constraint("Tangent", 0, 2, 1, 2),
    Sketcher.Constraint("Tangent", 1, 1, 2, 1),
    Sketcher.Constraint("Tangent", 2, 2, 3, 2),
    Sketcher.Constraint("Tangent", 3, 1, 0, 1),
    Sketcher.Constraint("Tangent", 4, 2, 5, 2),
    Sketcher.Constraint("Tangent", 5, 1, 6, 1),
    Sketcher.Constraint("Tangent", 6, 2, 7, 2),
    Sketcher.Constraint("Tangent", 7, 1, 4, 1),
    Sketcher.Constraint("Tangent", 8, 2, 9, 2),
    Sketcher.Constraint("Tangent", 9, 1, 10, 1),
    Sketcher.Constraint("Tangent", 10, 2, 11, 2),
    Sketcher.Constraint("Tangent", 11, 1, 8, 1),
    Sketcher.Constraint("Tangent", 12, 2, 13, 2),
    Sketcher.Constraint("Tangent", 13, 1, 14, 1),
    Sketcher.Constraint("Tangent", 14, 2, 15, 2),
    Sketcher.Constraint("Tangent", 15, 1, 12, 1),
    Sketcher.Constraint("Tangent", 16, 2, 17, 2),
    Sketcher.Constraint("Tangent", 17, 1, 18, 1),
    Sketcher.Constraint("Tangent", 18, 2, 19, 2),
    Sketcher.Constraint("Tangent", 19, 1, 16, 1),
    Sketcher.Constraint("Tangent", 20, 2, 21, 2),
    Sketcher.Constraint("Tangent", 21, 1, 22, 1),
    Sketcher.Constraint("Tangent", 22, 2, 23, 2),
    Sketcher.Constraint("Tangent", 23, 1, 20, 1),
    Sketcher.Constraint("Tangent", 24, 2, 25, 2),
    Sketcher.Constraint("Tangent", 25, 1, 26, 1),
    Sketcher.Constraint("Tangent", 26, 2, 27, 2),
    Sketcher.Constraint("Tangent", 27, 1, 24, 1),
    Sketcher.Constraint("Tangent", 28, 2, 29, 2),
    Sketcher.Constraint("Tangent", 29, 1, 30, 1),
    Sketcher.Constraint("Tangent", 30, 2, 31, 2),
    Sketcher.Constraint("Tangent", 31, 1, 28, 1),
    Sketcher.Constraint("Tangent", 32, 2, 33, 2),
    Sketcher.Constraint("Tangent", 33, 1, 34, 1),
    Sketcher.Constraint("Tangent", 34, 2, 35, 2),
    Sketcher.Constraint("Tangent", 35, 1, 32, 1),
    Sketcher.Constraint("Tangent", 36, 2, 37, 2),
    Sketcher.Constraint("Tangent", 37, 1, 38, 1),
    Sketcher.Constraint("Tangent", 38, 2, 39, 2),
    Sketcher.Constraint("Tangent", 39, 1, 36, 1),
    Sketcher.Constraint("Vertical", 0),
    Sketcher.Constraint("Vertical", 2),
    Sketcher.Constraint("Vertical", 4),
    Sketcher.Constraint("Vertical", 6),
    Sketcher.Constraint("Vertical", 8),
    Sketcher.Constraint("Vertical", 10),
    Sketcher.Constraint("Vertical", 12),
    Sketcher.Constraint("Vertical", 14),
    Sketcher.Constraint("Vertical", 16),
    Sketcher.Constraint("Vertical", 18),
    Sketcher.Constraint("Vertical", 20),
    Sketcher.Constraint("Vertical", 22),
    Sketcher.Constraint("Vertical", 24),
    Sketcher.Constraint("Vertical", 26),
    Sketcher.Constraint("Vertical", 28),
    Sketcher.Constraint("Vertical", 30),
    Sketcher.Constraint("Vertical", 32),
    Sketcher.Constraint("Vertical", 34),
    Sketcher.Constraint("Vertical", 36),
    Sketcher.Constraint("Vertical", 38),
    Sketcher.Constraint("Equal", 3, 5),
    Sketcher.Constraint("Equal", 7, 9),
    Sketcher.Constraint("Equal", 11, 13),
    Sketcher.Constraint("Equal", 15, 17),
    Sketcher.Constraint("Equal", 19, 21),
    Sketcher.Constraint("Equal", 23, 25),
    Sketcher.Constraint("Equal", 27, 29),
    Sketcher.Constraint("Equal", 31, 33),
    Sketcher.Constraint("Equal", 35, 37),
    Sketcher.Constraint("Horizontal", 1, 3, 5, 3),
    Sketcher.Constraint("Horizontal", 3, 3, 7, 3),
    Sketcher.Constraint("Horizontal", 5, 3, 9, 3),
    Sketcher.Constraint("Horizontal", 7, 3, 11, 3),
    Sketcher.Constraint("Horizontal", 9, 3, 13, 3),
    Sketcher.Constraint("Horizontal", 11, 3, 15, 3),
    Sketcher.Constraint("Horizontal", 13, 3, 17, 3),
    Sketcher.Constraint("Horizontal", 15, 3, 19, 3),
    Sketcher.Constraint("Horizontal", 21, 3, 25, 3),
    Sketcher.Constraint("Horizontal", 23, 3, 27, 3),
    Sketcher.Constraint("Horizontal", 25, 3, 29, 3),
    Sketcher.Constraint("Horizontal", 27, 3, 31, 3),
    Sketcher.Constraint("Horizontal", 29, 3, 33, 3),
    Sketcher.Constraint("Horizontal", 31, 3, 35, 3),
    Sketcher.Constraint("Horizontal", 33, 3, 37, 3),
    Sketcher.Constraint("Horizontal", 35, 3, 39, 3),
    Sketcher.Constraint("Vertical", 3, 3, 21, 3),
    Sketcher.Constraint("Vertical", 7, 3, 25, 3),
    Sketcher.Constraint("Vertical", 11, 3, 29, 3),
    Sketcher.Constraint("Vertical", 15, 3, 33, 3),
    Sketcher.Constraint("Vertical", 19, 3, 37, 3),
    Sketcher.Constraint("Equal", 18, 20),
    Sketcher.Constraint("Radius", 1, Q("2 mm")),
    Sketcher.Constraint("DistanceY", 0, 2, 0, 1, Q("40 mm")),
    Sketcher.Constraint("DistanceX", 1, 3, -1, 1, Q("45 mm")),
    Sketcher.Constraint("DistanceY", 1, 3, -1, 1, Q("197 mm")),
    Sketcher.Constraint("DistanceX", 5, 3, -1, 1, Q("35 mm")),
    Sketcher.Constraint("DistanceX", 9, 3, -1, 1, Q("25 mm")),
    Sketcher.Constraint("DistanceX", 13, 3, -1, 1, Q("15 mm")),
    Sketcher.Constraint("DistanceX", 17, 3, -1, 1, Q("5 mm")),
    Sketcher.Constraint("DistanceY", 21, 3, -1, 1, Q("55 mm")),
])
pocket5 = body.newObject("PartDesign::Pocket", "Pocket004")
pocket5.Profile = sketch6
pocket5.Type = "ThroughAll"
pocket5.Reversed = True

sketch7 = body.newObject("Sketcher::SketchObject", "Sketch006")
sketch7.AttachmentSupport = (doc.getObject("XZ_Plane"), [""])
sketch7.MapMode = "FlatFace"
sketch7.AttachmentOffset = App.Placement(Vector(0, 0, -5), App.Rotation())
sketch7.addGeometry([
    Part.LineSegment(Vector(-5, -139, 0), Vector(-44.6, -139, 0)),
    Part.ArcOfCircle(Part.Circle(Vector(-44.6, -137, 0), Vector(0, 0, 1), 2), math.radians(90), math.radians(270)),
    Part.LineSegment(Vector(-44.6, -135, 0), Vector(-5, -135, 0)),
    Part.ArcOfCircle(Part.Circle(Vector(-5, -137, 0), Vector(0, 0, 1), 2), math.radians(-90), math.radians(90)),
    Part.LineSegment(Vector(-5, -119, 0), Vector(-44.6, -119, 0)),
    Part.ArcOfCircle(Part.Circle(Vector(-44.6, -117, 0), Vector(0, 0, 1), 2), math.radians(90), math.radians(270)),
    Part.LineSegment(Vector(-44.6, -115, 0), Vector(-5, -115, 0)),
    Part.ArcOfCircle(Part.Circle(Vector(-5, -117, 0), Vector(0, 0, 1), 2), math.radians(-90), math.radians(90)),
    Part.LineSegment(Vector(-5, -99, 0), Vector(-44.6, -99, 0)),
    Part.ArcOfCircle(Part.Circle(Vector(-44.6, -97, 0), Vector(0, 0, 1), 2), math.radians(90), math.radians(270)),
    Part.LineSegment(Vector(-44.6, -95, 0), Vector(-5, -95, 0)),
    Part.ArcOfCircle(Part.Circle(Vector(-5, -97, 0), Vector(0, 0, 1), 2), math.radians(-90), math.radians(90)),
    Part.LineSegment(Vector(-5, -79, 0), Vector(-44.6, -79, 0)),
    Part.ArcOfCircle(Part.Circle(Vector(-44.6, -77, 0), Vector(0, 0, 1), 2), math.radians(90), math.radians(270)),
    Part.LineSegment(Vector(-44.6, -75, 0), Vector(-5, -75, 0)),
    Part.ArcOfCircle(Part.Circle(Vector(-5, -77, 0), Vector(0, 0, 1), 2), math.radians(-90), math.radians(90)),
], False)
sketch7.addConstraint([
    Sketcher.Constraint("Tangent", 0, 2, 1, 2),
    Sketcher.Constraint("Tangent", 1, 1, 2, 1),
    Sketcher.Constraint("Tangent", 2, 2, 3, 2),
    Sketcher.Constraint("Tangent", 3, 1, 0, 1),
    Sketcher.Constraint("Tangent", 4, 2, 5, 2),
    Sketcher.Constraint("Tangent", 5, 1, 6, 1),
    Sketcher.Constraint("Tangent", 6, 2, 7, 2),
    Sketcher.Constraint("Tangent", 7, 1, 4, 1),
    Sketcher.Constraint("Tangent", 8, 2, 9, 2),
    Sketcher.Constraint("Tangent", 9, 1, 10, 1),
    Sketcher.Constraint("Tangent", 10, 2, 11, 2),
    Sketcher.Constraint("Tangent", 11, 1, 8, 1),
    Sketcher.Constraint("Tangent", 12, 2, 13, 2),
    Sketcher.Constraint("Tangent", 13, 1, 14, 1),
    Sketcher.Constraint("Tangent", 14, 2, 15, 2),
    Sketcher.Constraint("Tangent", 15, 1, 12, 1),
    Sketcher.Constraint("Horizontal", 0),
    Sketcher.Constraint("Horizontal", 2),
    Sketcher.Constraint("Horizontal", 4),
    Sketcher.Constraint("Horizontal", 6),
    Sketcher.Constraint("Horizontal", 8),
    Sketcher.Constraint("Horizontal", 10),
    Sketcher.Constraint("Horizontal", 12),
    Sketcher.Constraint("Horizontal", 14),
    Sketcher.Constraint("Equal", 3, 5),
    Sketcher.Constraint("Equal", 7, 9),
    Sketcher.Constraint("Equal", 11, 13),
    Sketcher.Constraint("Vertical", 1, 3, 5, 3),
    Sketcher.Constraint("Vertical", 3, 3, 7, 3),
    Sketcher.Constraint("Vertical", 5, 3, 9, 3),
    Sketcher.Constraint("Vertical", 7, 3, 11, 3),
    Sketcher.Constraint("Vertical", 9, 3, 13, 3),
    Sketcher.Constraint("Vertical", 11, 3, 15, 3),
    Sketcher.Constraint("Radius", 1, Q("2 mm")),
    Sketcher.Constraint("DistanceY", 1, 3, -1, 1, Q("137 mm")),
    Sketcher.Constraint("DistanceX", 3, 3, -1, 1, Q("5 mm")),
    Sketcher.Constraint("DistanceY", 5, 3, -1, 1, Q("117 mm")),
    Sketcher.Constraint("DistanceY", 9, 3, -1, 1, Q("97 mm")),
    Sketcher.Constraint("DistanceY", 13, 3, -1, 1, Q("77 mm")),
    Sketcher.Constraint("DistanceX", 0, 2, 0, 1, Q("39.604933 mm")),
])
pocket6 = body.newObject("PartDesign::Pocket", "Pocket005")
pocket6.Profile = sketch7
pocket6.Type = "ThroughAll"
pocket6.Reversed = True

doc.recompute()
